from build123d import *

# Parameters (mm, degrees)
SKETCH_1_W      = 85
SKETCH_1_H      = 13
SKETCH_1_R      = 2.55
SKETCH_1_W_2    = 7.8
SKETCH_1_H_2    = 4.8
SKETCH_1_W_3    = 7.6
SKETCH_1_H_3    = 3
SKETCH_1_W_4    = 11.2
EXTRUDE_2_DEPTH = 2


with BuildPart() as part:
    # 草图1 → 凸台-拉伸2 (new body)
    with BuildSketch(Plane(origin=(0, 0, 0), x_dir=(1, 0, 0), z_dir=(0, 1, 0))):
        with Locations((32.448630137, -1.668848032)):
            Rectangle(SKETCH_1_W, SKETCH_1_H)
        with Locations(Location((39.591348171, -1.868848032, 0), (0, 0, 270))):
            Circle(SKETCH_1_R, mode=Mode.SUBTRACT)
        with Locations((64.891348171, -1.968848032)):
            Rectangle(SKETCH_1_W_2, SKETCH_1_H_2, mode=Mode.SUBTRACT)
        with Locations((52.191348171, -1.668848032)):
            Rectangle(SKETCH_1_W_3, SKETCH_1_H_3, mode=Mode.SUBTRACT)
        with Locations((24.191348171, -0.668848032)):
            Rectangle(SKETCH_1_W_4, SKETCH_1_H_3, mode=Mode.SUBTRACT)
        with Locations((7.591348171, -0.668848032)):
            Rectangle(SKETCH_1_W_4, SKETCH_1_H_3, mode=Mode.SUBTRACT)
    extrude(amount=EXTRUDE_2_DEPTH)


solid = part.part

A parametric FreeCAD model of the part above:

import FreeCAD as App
import Part
import Sketcher

doc = App.newDocument("Part")
body = doc.addObject("PartDesign::Body", "Body")

sketch1 = body.newObject("Sketcher::SketchObject", "Sketch")
sketch1.AttachmentSupport = (doc.getObject("XZ_Plane"), [""])
sketch1.MapMode = "FlatFace"
sketch1.addGeometry([
    Part.LineSegment(App.Vector(-10.1, -4.8, 0), App.Vector(-10.1, 8.2, 0)),
    Part.LineSegment(App.Vector(-10.1, 8.2, 0), App.Vector(74.9, 8.2, 0)),
    Part.LineSegment(App.Vector(74.9, 8.2, 0), App.Vector(74.9, -4.8, 0)),
    Part.LineSegment(App.Vector(74.9, -4.8, 0), App.Vector(-10.1, -4.8, 0)),
    Part.Circle(App.Vector(39.6, 1.9, 0), App.Vector(0, 0, 1), 2.5),
    Part.LineSegment(App.Vector(68.8, 4.4, 0), App.Vector(61, 4.4, 0)),
    Part.LineSegment(App.Vector(61, 4.4, 0), App.Vector(61, -0.4, 0)),
    Part.LineSegment(App.Vector(61, -0.4, 0), App.Vector(68.8, -0.4, 0)),
    Part.LineSegment(App.Vector(68.8, -0.4, 0), App.Vector(68.8, 4.4, 0)),
    Part.LineSegment(App.Vector(13.2, 2.2, 0), App.Vector(2, 2.2, 0)),
    Part.LineSegment(App.Vector(2, 2.2, 0), App.Vector(2, -0.8, 0)),
    Part.LineSegment(App.Vector(2, -0.8, 0), App.Vector(13.2, -0.8, 0)),
    Part.LineSegment(App.Vector(13.2, -0.8, 0), App.Vector(13.2, 2.2, 0)),
    Part.LineSegment(App.Vector(29.8, 2.2, 0), App.Vector(18.6, 2.2, 0)),
    Part.LineSegment(App.Vector(18.6, 2.2, 0), App.Vector(18.6, -0.8, 0)),
    Part.LineSegment(App.Vector(18.6, -0.8, 0), App.Vector(29.8, -0.8, 0)),
    Part.LineSegment(App.Vector(29.8, -0.8, 0), App.Vector(29.8, 2.2, 0)),
    Part.LineSegment(App.Vector(56, 3.2, 0), App.Vector(48.4, 3.2, 0)),
    Part.LineSegment(App.Vector(48.4, 3.2, 0), App.Vector(48.4, 0.2, 0)),
    Part.LineSegment(App.Vector(48.4, 0.2, 0), App.Vector(56, 0.2, 0)),
    Part.LineSegment(App.Vector(56, 0.2, 0), App.Vector(56, 3.2, 0)),
], False)
sketch1.addConstraint([
    Sketcher.Constraint("Coincident", 0, 2, 1, 1),
    Sketcher.Constraint("Coincident", 1, 2, 2, 1),
    Sketcher.Constraint("Coincident", 2, 2, 3, 1),
    Sketcher.Constraint("Coincident", 3, 2, 0, 1),
    Sketcher.Constraint("Coincident", 5, 2, 6, 1),
    Sketcher.Constraint("Coincident", 6, 2, 7, 1),
    Sketcher.Constraint("Coincident", 7, 2, 8, 1),
    Sketcher.Constraint("Coincident", 8, 2, 5, 1),
    Sketcher.Constraint("Coincident", 9, 2, 10, 1),
    Sketcher.Constraint("Coincident", 10, 2, 11, 1),
    Sketcher.Constraint("Coincident", 11, 2, 12, 1),
    Sketcher.Constraint("Coincident", 12, 2, 9, 1),
    Sketcher.Constraint("Coincident", 13, 2, 14, 1),
    Sketcher.Constraint("Coincident", 14, 2, 15, 1),
    Sketcher.Constraint("Coincident", 15, 2, 16, 1),
    Sketcher.Constraint("Coincident", 16, 2, 13, 1),
    Sketcher.Constraint("Coincident", 17, 2, 18, 1),
    Sketcher.Constraint("Coincident", 18, 2, 19, 1),
    Sketcher.Constraint("Coincident", 19, 2, 20, 1),
    Sketcher.Constraint("Coincident", 20, 2, 17, 1),
    Sketcher.Constraint("Vertical", 0),
    Sketcher.Constraint("Horizontal", 1),
    Sketcher.Constraint("Vertical", 2),
    Sketcher.Constraint("Horizontal", 3),
    Sketcher.Constraint("Horizontal", 5),
    Sketcher.Constraint("Vertical", 6),
    Sketcher.Constraint("Horizontal", 7),
    Sketcher.Constraint("Vertical", 8),
    Sketcher.Constraint("Horizontal", 9),
    Sketcher.Constraint("Vertical", 10),
    Sketcher.Constraint("Horizontal", 11),
    Sketcher.Constraint("Vertical", 12),
    Sketcher.Constraint("Horizontal", 13),
    Sketcher.Constraint("Vertical", 14),
    Sketcher.Constraint("Horizontal", 15),
    Sketcher.Constraint("Vertical", 16),
    Sketcher.Constraint("Horizontal", 17),
    Sketcher.Constraint("Vertical", 18),
    Sketcher.Constraint("Horizontal", 19),
    Sketcher.Constraint("Vertical", 20),
    Sketcher.Constraint("Horizontal", 12, 2, 13, 2),
    Sketcher.Constraint("Horizontal", 11, 2, 14, 2),
    Sketcher.Constraint("Equal", 11, 13),
    Sketcher.Constraint("Equal", 16, 18),
    Sketcher.Constraint("Diameter", 4, 5.1),
    Sketcher.Constraint("DistanceX", 1, 1, 1, 2, 85.0),
    Sketcher.Constraint("DistanceY", 0, 1, 0, 2, 13.0),
    Sketcher.Constraint("DistanceY", 10, 2, 10, 1, 3.0),
    Sketcher.Constraint("DistanceX", 5, 2, 5, 1, 7.8),
    Sketcher.Constraint("DistanceX", 9, 2, 9, 1, 11.2),
    Sketcher.Constraint("DistanceX", 17, 2, 17, 1, 7.6),
    Sketcher.Constraint("DistanceY", 6, 2, 6, 1, 4.8),
    Sketcher.Constraint("DistanceY", 9, 2, 0, 2, 6.0),
    Sketcher.Constraint("DistanceX", 9, 2, 5, 2, 59.0),
    Sketcher.Constraint("DistanceX", 13, 2, 4, 3, 21.0),
    Sketcher.Constraint("DistanceY", 16, 2, 17, 2, 1.0),
    Sketcher.Constraint("DistanceX", 19, 2, 6, 2, 5.0),
    Sketcher.Constraint("DistanceY", 4, 3, 0, 2, 6.3),
    Sketcher.Constraint("DistanceY", 5, 2, 1, 2, 3.8),
    Sketcher.Constraint("DistanceX", 4, 3, 5, 2, 21.4),
    Sketcher.Constraint("DistanceX", -1, 1, 4, 3, 39.591348),
    Sketcher.Constraint("DistanceY", -1, 1, 4, 3, 1.868848),
    Sketcher.Constraint("DistanceX", 0, 2, -1, 1, 10.05137),
])
pad1 = body.newObject("PartDesign::Pad", "Pad")
pad1.Profile = sketch1
pad1.Length = 2
pad1.Reversed = True

doc.recompute()
